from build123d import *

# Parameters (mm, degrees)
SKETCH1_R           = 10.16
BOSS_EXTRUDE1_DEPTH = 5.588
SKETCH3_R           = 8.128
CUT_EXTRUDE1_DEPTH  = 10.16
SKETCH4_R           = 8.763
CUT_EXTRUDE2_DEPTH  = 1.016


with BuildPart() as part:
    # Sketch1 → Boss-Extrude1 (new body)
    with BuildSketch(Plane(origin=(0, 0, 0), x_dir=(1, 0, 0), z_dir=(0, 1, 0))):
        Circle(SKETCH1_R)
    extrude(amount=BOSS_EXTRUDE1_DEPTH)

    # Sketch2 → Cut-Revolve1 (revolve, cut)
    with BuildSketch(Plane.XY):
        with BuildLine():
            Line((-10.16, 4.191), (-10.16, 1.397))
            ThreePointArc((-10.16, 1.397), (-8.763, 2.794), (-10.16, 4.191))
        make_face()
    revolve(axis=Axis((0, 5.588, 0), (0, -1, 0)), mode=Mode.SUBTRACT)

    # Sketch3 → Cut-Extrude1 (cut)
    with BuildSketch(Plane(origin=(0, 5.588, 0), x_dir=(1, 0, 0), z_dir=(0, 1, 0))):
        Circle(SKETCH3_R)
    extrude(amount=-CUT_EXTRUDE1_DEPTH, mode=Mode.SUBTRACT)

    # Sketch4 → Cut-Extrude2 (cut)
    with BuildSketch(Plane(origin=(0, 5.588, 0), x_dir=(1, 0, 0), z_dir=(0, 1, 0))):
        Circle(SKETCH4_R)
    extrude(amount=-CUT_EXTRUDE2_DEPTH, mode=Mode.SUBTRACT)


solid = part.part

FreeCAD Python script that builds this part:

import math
import FreeCAD as App
import Part
import Sketcher

V = App.Vector
Q = App.Units.Quantity

doc = App.newDocument("Part")
body = doc.addObject("PartDesign::Body", "Body")

sketch1 = body.newObject("Sketcher::SketchObject", "Sketch")
sketch1.AttachmentSupport = (doc.getObject("XZ_Plane"), [""])
sketch1.MapMode = "FlatFace"
sketch1.addGeometry(Part.Circle(V(0, 0, 0), V(0, 0, 1), 10.16), False)
sketch1.addConstraint([
    Sketcher.Constraint("Coincident", 0, 3, -1, 1),
    Sketcher.Constraint("Diameter", 0, Q("0.8 in")),
])
pad1 = body.newObject("PartDesign::Pad", "Pad")
pad1.Profile = sketch1
pad1.Length = Q("0.22 in")
pad1.Reversed = True

sketch2 = body.newObject("Sketcher::SketchObject", "Sketch001")
sketch2.AttachmentSupport = (doc.getObject("XY_Plane"), [""])
sketch2.MapMode = "FlatFace"
sketch2.addGeometry([
    Part.LineSegment(V(-10.16, 4.191, 0), V(-10.16, 1.397, 0)),
    Part.ArcOfCircle(Part.Circle(V(-10.16, 2.794, 0), V(0, 0, 1), 1.397), math.radians(-90), math.radians(90)),
], False)
sketch2.addConstraint([
    Sketcher.Constraint("Coincident", 0, 1, 1, 2),
    Sketcher.Constraint("Coincident", 1, 1, 0, 2),
    Sketcher.Constraint("Vertical", 0),
    Sketcher.Constraint("Vertical", 1, 3, 0, 1),
    Sketcher.Constraint("Radius", 1, Q("0.055 in")),
    Sketcher.Constraint("DistanceX", 1, 3, -1, 1, Q("0.4 in")),
    Sketcher.Constraint("DistanceY", -1, 1, 1, 3, Q("0.11 in")),
])
groove = body.newObject("PartDesign::Groove", "Groove")
groove.Profile = sketch2
groove.ReferenceAxis = (sketch2, ["V_Axis"])
groove.Angle = 360

sketch3 = body.newObject("Sketcher::SketchObject", "Sketch002")
sketch3.AttachmentSupport = (doc.getObject("XZ_Plane"), [""])
sketch3.MapMode = "FlatFace"
sketch3.AttachmentOffset = App.Placement(V(0, 0, -0.22 * 25.4), App.Rotation())
sketch3.addGeometry(Part.Circle(V(0, 0, 0), V(0, 0, 1), 8.128), False)
sketch3.addConstraint([
    Sketcher.Constraint("Coincident", 0, 3, -1, 1),
    Sketcher.Constraint("Diameter", 0, Q("0.64 in")),
])
pocket1 = body.newObject("PartDesign::Pocket", "Pocket")
pocket1.Profile = sketch3
pocket1.Length = Q("0.4 in")
pocket1.Reversed = True

sketch4 = body.newObject("Sketcher::SketchObject", "Sketch003")
sketch4.AttachmentSupport = (doc.getObject("XZ_Plane"), [""])
sketch4.MapMode = "FlatFace"
sketch4.AttachmentOffset = App.Placement(V(0, 0, -0.22 * 25.4), App.Rotation())
sketch4.addGeometry(Part.Circle(V(0, 0, 0), V(0, 0, 1), 8.763), False)
sketch4.addConstraint([
    Sketcher.Constraint("Coincident", 0, 3, -1, 1),
    Sketcher.Constraint("Diameter", 0, Q("0.69 in")),
])
pocket2 = body.newObject("PartDesign::Pocket", "Pocket001")
pocket2.Profile = sketch4
pocket2.Length = Q("0.04 in")
pocket2.Reversed = True

doc.recompute()
